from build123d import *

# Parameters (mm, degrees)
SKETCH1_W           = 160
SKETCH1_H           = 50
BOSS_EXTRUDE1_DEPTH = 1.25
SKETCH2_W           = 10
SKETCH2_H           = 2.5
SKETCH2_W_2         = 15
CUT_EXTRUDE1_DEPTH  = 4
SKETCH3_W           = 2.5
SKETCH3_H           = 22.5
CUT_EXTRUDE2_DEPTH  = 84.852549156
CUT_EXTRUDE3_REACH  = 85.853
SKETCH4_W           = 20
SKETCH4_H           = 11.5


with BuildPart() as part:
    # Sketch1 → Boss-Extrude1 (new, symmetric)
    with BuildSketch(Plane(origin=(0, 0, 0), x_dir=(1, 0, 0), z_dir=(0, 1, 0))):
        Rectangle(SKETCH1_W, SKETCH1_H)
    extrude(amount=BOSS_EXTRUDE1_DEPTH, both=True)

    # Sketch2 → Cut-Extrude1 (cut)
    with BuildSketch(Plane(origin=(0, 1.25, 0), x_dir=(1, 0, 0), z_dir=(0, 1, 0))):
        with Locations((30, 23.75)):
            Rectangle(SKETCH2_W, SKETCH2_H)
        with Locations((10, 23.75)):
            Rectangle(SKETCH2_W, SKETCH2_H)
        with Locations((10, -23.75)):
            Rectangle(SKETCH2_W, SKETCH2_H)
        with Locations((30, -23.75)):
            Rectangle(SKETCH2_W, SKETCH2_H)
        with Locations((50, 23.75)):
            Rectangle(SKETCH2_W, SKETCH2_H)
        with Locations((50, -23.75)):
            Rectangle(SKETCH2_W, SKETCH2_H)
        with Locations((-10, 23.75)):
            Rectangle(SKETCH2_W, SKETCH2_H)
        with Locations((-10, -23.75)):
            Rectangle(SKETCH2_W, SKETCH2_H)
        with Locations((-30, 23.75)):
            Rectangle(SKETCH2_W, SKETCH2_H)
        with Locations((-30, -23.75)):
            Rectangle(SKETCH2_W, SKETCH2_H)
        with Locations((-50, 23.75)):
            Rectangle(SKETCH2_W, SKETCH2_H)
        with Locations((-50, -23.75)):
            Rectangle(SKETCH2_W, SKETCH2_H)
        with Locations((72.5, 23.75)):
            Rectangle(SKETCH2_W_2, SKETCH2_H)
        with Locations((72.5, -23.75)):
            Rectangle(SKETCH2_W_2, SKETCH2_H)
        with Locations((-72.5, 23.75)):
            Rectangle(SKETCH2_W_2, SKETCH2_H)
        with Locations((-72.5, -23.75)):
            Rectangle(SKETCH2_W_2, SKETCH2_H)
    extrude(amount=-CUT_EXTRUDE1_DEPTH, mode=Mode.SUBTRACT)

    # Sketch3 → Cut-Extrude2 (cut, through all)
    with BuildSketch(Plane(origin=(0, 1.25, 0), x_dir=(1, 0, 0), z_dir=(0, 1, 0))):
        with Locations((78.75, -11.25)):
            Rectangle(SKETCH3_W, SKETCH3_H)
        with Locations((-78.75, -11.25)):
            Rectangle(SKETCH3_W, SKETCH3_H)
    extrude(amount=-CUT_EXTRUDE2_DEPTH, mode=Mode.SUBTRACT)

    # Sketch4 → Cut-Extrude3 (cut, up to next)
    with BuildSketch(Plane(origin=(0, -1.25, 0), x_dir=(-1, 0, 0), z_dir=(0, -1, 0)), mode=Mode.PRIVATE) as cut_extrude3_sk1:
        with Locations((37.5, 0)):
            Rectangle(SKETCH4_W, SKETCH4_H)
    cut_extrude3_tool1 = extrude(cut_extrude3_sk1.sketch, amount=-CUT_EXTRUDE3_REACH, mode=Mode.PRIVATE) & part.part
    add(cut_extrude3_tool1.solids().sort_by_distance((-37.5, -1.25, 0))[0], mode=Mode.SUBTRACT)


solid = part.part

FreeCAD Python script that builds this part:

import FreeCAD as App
import Part
import Sketcher
from FreeCAD import Vector
Q = App.Units.Quantity


def add_polygon(sketch, points):
    """Adds a closed chain of lines whose ends are joined by coincident constraints."""
    first, n = sketch.GeometryCount, len(points)
    for a, b in zip(points, points[1:] + points[:1]):
        sketch.addGeometry(Part.LineSegment(App.Vector(*a, 0), App.Vector(*b, 0)), False)
    for i in range(n):
        sketch.addConstraint(Sketcher.Constraint("Coincident", first + i, 2, first + (i + 1) % n, 1))

doc = App.newDocument("Part")
body = doc.addObject("PartDesign::Body", "Body")

# Sketch on XZ plane
sketch1 = doc.addObject("Sketcher::SketchObject", "Sketch")
body.addObject(sketch1)
sketch1.AttachmentSupport = (doc.XZ_Plane, [""])
sketch1.MapMode = "FlatFace"
add_polygon(sketch1, [(-80, -25), (-80, 25), (80, 25), (80, -25)])  # lines 0-3
sketch1.addConstraint(Sketcher.Constraint("Vertical", 0))
sketch1.addConstraint(Sketcher.Constraint("Horizontal", 1))
sketch1.addConstraint(Sketcher.Constraint("Vertical", 2))
sketch1.addConstraint(Sketcher.Constraint("Horizontal", 3))
sketch1.addConstraint(Sketcher.Constraint("Symmetric", 0, 2, 2, 2, -1, 1))
sketch1.addConstraint(Sketcher.Constraint("DistanceX", 1, 1, 1, 2, Q("160 mm")))
sketch1.addConstraint(Sketcher.Constraint("DistanceY", 0, 1, 0, 2, Q("50 mm")))
pad1 = doc.addObject("PartDesign::Pad", "Pad")
body.addObject(pad1)
pad1.Profile = sketch1
pad1.Length = 2.5
pad1.Midplane = True

# Sketch on XZ plane
sketch2 = doc.addObject("Sketcher::SketchObject", "Sketch001")
body.addObject(sketch2)
sketch2.AttachmentSupport = (doc.XZ_Plane, [""])
sketch2.MapMode = "FlatFace"
sketch2.AttachmentOffset = App.Placement(Vector(0, 0, -1.25), App.Rotation())
add_polygon(sketch2, [(25, -25), (25, -22.5), (35, -22.5), (35, -25)])  # lines 0-3
add_polygon(sketch2, [(5, -25), (5, -22.5), (15, -22.5), (15, -25)])  # lines 4-7
add_polygon(sketch2, [(5, 22.5), (5, 25), (15, 25), (15, 22.5)])  # lines 8-11
add_polygon(sketch2, [(25, 22.5), (25, 25), (35, 25), (35, 22.5)])  # lines 12-15
add_polygon(sketch2, [(45, -25), (45, -22.5), (55, -22.5), (55, -25)])  # lines 16-19
add_polygon(sketch2, [(45, 22.5), (45, 25), (55, 25), (55, 22.5)])  # lines 20-23
add_polygon(sketch2, [(-15, -25), (-15, -22.5), (-5, -22.5), (-5, -25)])  # lines 24-27
add_polygon(sketch2, [(-15, 22.5), (-15, 25), (-5, 25), (-5, 22.5)])  # lines 28-31
add_polygon(sketch2, [(-35, -25), (-35, -22.5), (-25, -22.5), (-25, -25)])  # lines 32-35
add_polygon(sketch2, [(-35, 22.5), (-35, 25), (-25, 25), (-25, 22.5)])  # lines 36-39
add_polygon(sketch2, [(-55, -25), (-55, -22.5), (-45, -22.5), (-45, -25)])  # lines 40-43
add_polygon(sketch2, [(-55, 22.5), (-55, 25), (-45, 25), (-45, 22.5)])  # lines 44-47
add_polygon(sketch2, [(65, -25), (65, -22.5), (80, -22.5), (80, -25)])  # lines 48-51
add_polygon(sketch2, [(65, 22.5), (65, 25), (80, 25), (80, 22.5)])  # lines 52-55
add_polygon(sketch2, [(-80, -25), (-80, -22.5), (-65, -22.5), (-65, -25)])  # lines 56-59
add_polygon(sketch2, [(-80, 22.5), (-80, 25), (-65, 25), (-65, 22.5)])  # lines 60-63
sketch2.addConstraint(Sketcher.Constraint("Vertical", 0))
sketch2.addConstraint(Sketcher.Constraint("Horizontal", 1))
sketch2.addConstraint(Sketcher.Constraint("Vertical", 2))
sketch2.addConstraint(Sketcher.Constraint("Horizontal", 3))
sketch2.addConstraint(Sketcher.Constraint("Vertical", 4))
sketch2.addConstraint(Sketcher.Constraint("Horizontal", 5))
sketch2.addConstraint(Sketcher.Constraint("Vertical", 6))
sketch2.addConstraint(Sketcher.Constraint("Horizontal", 7))
sketch2.addConstraint(Sketcher.Constraint("Vertical", 8))
sketch2.addConstraint(Sketcher.Constraint("Horizontal", 9))
sketch2.addConstraint(Sketcher.Constraint("Vertical", 10))
sketch2.addConstraint(Sketcher.Constraint("Horizontal", 11))
sketch2.addConstraint(Sketcher.Constraint("Vertical", 12))
sketch2.addConstraint(Sketcher.Constraint("Horizontal", 13))
sketch2.addConstraint(Sketcher.Constraint("Vertical", 14))
sketch2.addConstraint(Sketcher.Constraint("Horizontal", 15))
sketch2.addConstraint(Sketcher.Constraint("Vertical", 16))
sketch2.addConstraint(Sketcher.Constraint("Horizontal", 17))
sketch2.addConstraint(Sketcher.Constraint("Vertical", 18))
sketch2.addConstraint(Sketcher.Constraint("Horizontal", 19))
sketch2.addConstraint(Sketcher.Constraint("Vertical", 20))
sketch2.addConstraint(Sketcher.Constraint("Horizontal", 21))
sketch2.addConstraint(Sketcher.Constraint("Vertical", 22))
sketch2.addConstraint(Sketcher.Constraint("Horizontal", 23))
sketch2.addConstraint(Sketcher.Constraint("Vertical", 24))
sketch2.addConstraint(Sketcher.Constraint("Horizontal", 25))
sketch2.addConstraint(Sketcher.Constraint("Vertical", 26))
sketch2.addConstraint(Sketcher.Constraint("Horizontal", 27))
sketch2.addConstraint(Sketcher.Constraint("Vertical", 28))
sketch2.addConstraint(Sketcher.Constraint("Horizontal", 29))
sketch2.addConstraint(Sketcher.Constraint("Vertical", 30))
sketch2.addConstraint(Sketcher.Constraint("Horizontal", 31))
sketch2.addConstraint(Sketcher.Constraint("Vertical", 32))
sketch2.addConstraint(Sketcher.Constraint("Horizontal", 33))
sketch2.addConstraint(Sketcher.Constraint("Vertical", 34))
sketch2.addConstraint(Sketcher.Constraint("Horizontal", 35))
sketch2.addConstraint(Sketcher.Constraint("Vertical", 36))
sketch2.addConstraint(Sketcher.Constraint("Horizontal", 37))
sketch2.addConstraint(Sketcher.Constraint("Vertical", 38))
sketch2.addConstraint(Sketcher.Constraint("Horizontal", 39))
sketch2.addConstraint(Sketcher.Constraint("Vertical", 40))
sketch2.addConstraint(Sketcher.Constraint("Horizontal", 41))
sketch2.addConstraint(Sketcher.Constraint("Vertical", 42))
sketch2.addConstraint(Sketcher.Constraint("Horizontal", 43))
sketch2.addConstraint(Sketcher.Constraint("Vertical", 44))
sketch2.addConstraint(Sketcher.Constraint("Horizontal", 45))
sketch2.addConstraint(Sketcher.Constraint("Vertical", 46))
sketch2.addConstraint(Sketcher.Constraint("Horizontal", 47))
sketch2.addConstraint(Sketcher.Constraint("Vertical", 48))
sketch2.addConstraint(Sketcher.Constraint("Horizontal", 49))
sketch2.addConstraint(Sketcher.Constraint("Vertical", 50))
sketch2.addConstraint(Sketcher.Constraint("Horizontal", 51))
sketch2.addConstraint(Sketcher.Constraint("Vertical", 52))
sketch2.addConstraint(Sketcher.Constraint("Horizontal", 53))
sketch2.addConstraint(Sketcher.Constraint("Vertical", 54))
sketch2.addConstraint(Sketcher.Constraint("Horizontal", 55))
sketch2.addConstraint(Sketcher.Constraint("Vertical", 56))
sketch2.addConstraint(Sketcher.Constraint("Horizontal", 57))
sketch2.addConstraint(Sketcher.Constraint("Vertical", 58))
sketch2.addConstraint(Sketcher.Constraint("Horizontal", 59))
sketch2.addConstraint(Sketcher.Constraint("Vertical", 60))
sketch2.addConstraint(Sketcher.Constraint("Horizontal", 61))
sketch2.addConstraint(Sketcher.Constraint("Vertical", 62))
sketch2.addConstraint(Sketcher.Constraint("Horizontal", 63))
sketch2.addConstraint(Sketcher.Constraint("Symmetric", 10, 2, 24, 2, -1, 1))
sketch2.addConstraint(Sketcher.Constraint("Symmetric", 8, 2, 26, 2, -1, 1))
sketch2.addConstraint(Sketcher.Constraint("Symmetric", 6, 2, 28, 2, -1, 1))
sketch2.addConstraint(Sketcher.Constraint("Symmetric", 4, 2, 30, 2, -1, 1))
sketch2.addConstraint(Sketcher.Constraint("Symmetric", 14, 2, 32, 2, -1, 1))
sketch2.addConstraint(Sketcher.Constraint("Symmetric", 12, 2, 34, 2, -1, 1))
sketch2.addConstraint(Sketcher.Constraint("Symmetric", 2, 2, 36, 2, -1, 1))
sketch2.addConstraint(Sketcher.Constraint("Symmetric", 0, 2, 38, 2, -1, 1))
sketch2.addConstraint(Sketcher.Constraint("Symmetric", 22, 2, 40, 2, -1, 1))
sketch2.addConstraint(Sketcher.Constraint("Symmetric", 20, 2, 42, 2, -1, 1))
sketch2.addConstraint(Sketcher.Constraint("Symmetric", 18, 2, 44, 2, -1, 1))
sketch2.addConstraint(Sketcher.Constraint("Symmetric", 16, 2, 46, 2, -1, 1))
sketch2.addConstraint(Sketcher.Constraint("Symmetric", 54, 2, 56, 2, -1, 1))
sketch2.addConstraint(Sketcher.Constraint("Symmetric", 52, 2, 58, 2, -1, 1))
sketch2.addConstraint(Sketcher.Constraint("Symmetric", 50, 2, 60, 2, -1, 1))
sketch2.addConstraint(Sketcher.Constraint("Symmetric", 48, 2, 62, 2, -1, 1))
sketch2.addConstraint(Sketcher.Constraint("Symmetric", 5, 2, 24, 2, -2))
sketch2.addConstraint(Sketcher.Constraint("Symmetric", 7, 2, 26, 2, -2))
sketch2.addConstraint(Sketcher.Constraint("Symmetric", 1, 2, 32, 2, -2))
sketch2.addConstraint(Sketcher.Constraint("Symmetric", 3, 2, 34, 2, -2))
sketch2.addConstraint(Sketcher.Constraint("Symmetric", 17, 2, 40, 2, -2))
sketch2.addConstraint(Sketcher.Constraint("Symmetric", 19, 2, 42, 2, -2))
sketch2.addConstraint(Sketcher.Constraint("Symmetric", 49, 2, 56, 2, -2))
sketch2.addConstraint(Sketcher.Constraint("Symmetric", 51, 2, 58, 2, -2))
sketch2.addConstraint(Sketcher.Constraint("Horizontal", 1, 2, 4, 2))
sketch2.addConstraint(Sketcher.Constraint("Horizontal", 3, 2, 6, 2))
sketch2.addConstraint(Sketcher.Constraint("Horizontal", 5, 2, 16, 2))
sketch2.addConstraint(Sketcher.Constraint("Horizontal", 7, 2, 18, 2))
sketch2.addConstraint(Sketcher.Constraint("Horizontal", 41, 2, 48, 2))
sketch2.addConstraint(Sketcher.Constraint("Horizontal", 43, 2, 50, 2))
sketch2.addConstraint(Sketcher.Constraint("Equal", 3, 5))
sketch2.addConstraint(Sketcher.Constraint("Equal", 15, 17))
sketch2.addConstraint(Sketcher.Constraint("DistanceX", 1, 1, 1, 2, Q("10 mm")))
sketch2.addConstraint(Sketcher.Constraint("DistanceX", 49, 1, 49, 2, Q("15 mm")))
sketch2.addConstraint(Sketcher.Constraint("DistanceY", 0, 1, 0, 2, Q("2.5 mm")))
sketch2.addConstraint(Sketcher.Constraint("DistanceX", -1, 1, 0, 2, Q("25 mm")))
sketch2.addConstraint(Sketcher.Constraint("DistanceY", 2, 2, -1, 1, Q("25 mm")))
sketch2.addConstraint(Sketcher.Constraint("DistanceX", -1, 1, 4, 2, Q("5 mm")))
sketch2.addConstraint(Sketcher.Constraint("DistanceX", -1, 1, 16, 2, Q("45 mm")))
sketch2.addConstraint(Sketcher.Constraint("DistanceX", -1, 1, 48, 2, Q("65 mm")))
pocket1 = doc.addObject("PartDesign::Pocket", "Pocket")
body.addObject(pocket1)
pocket1.Profile = sketch2
pocket1.Length = 4
pocket1.Reversed = True

# Sketch on XZ plane
sketch3 = doc.addObject("Sketcher::SketchObject", "Sketch002")
body.addObject(sketch3)
sketch3.AttachmentSupport = (doc.XZ_Plane, [""])
sketch3.MapMode = "FlatFace"
sketch3.AttachmentOffset = App.Placement(Vector(0, 0, -1.25), App.Rotation())
add_polygon(sketch3, [(77.5, 0), (77.5, 22.5), (80, 22.5), (80, 0)])  # lines 0-3
add_polygon(sketch3, [(-80, 0), (-80, 22.5), (-77.5, 22.5), (-77.5, 0)])  # lines 4-7
sketch3.addConstraint(Sketcher.Constraint("Vertical", 0))
sketch3.addConstraint(Sketcher.Constraint("Horizontal", 1))
sketch3.addConstraint(Sketcher.Constraint("Vertical", 2))
sketch3.addConstraint(Sketcher.Constraint("Horizontal", 3))
sketch3.addConstraint(Sketcher.Constraint("Vertical", 4))
sketch3.addConstraint(Sketcher.Constraint("Horizontal", 5))
sketch3.addConstraint(Sketcher.Constraint("Vertical", 6))
sketch3.addConstraint(Sketcher.Constraint("Horizontal", 7))
sketch3.addConstraint(Sketcher.Constraint("Symmetric", 3, 2, 6, 2, -1, 1))
sketch3.addConstraint(Sketcher.Constraint("Symmetric", 1, 2, 4, 2, -2))
sketch3.addConstraint(Sketcher.Constraint("PointOnObject", 2, 2, -1))
sketch3.addConstraint(Sketcher.Constraint("DistanceX", 1, 1, 1, 2, Q("2.5 mm")))
sketch3.addConstraint(Sketcher.Constraint("DistanceY", 0, 1, 0, 2, Q("22.5 mm")))
sketch3.addConstraint(Sketcher.Constraint("DistanceX", -1, 1, 1, 2, Q("80 mm")))
pocket2 = doc.addObject("PartDesign::Pocket", "Pocket001")
body.addObject(pocket2)
pocket2.Profile = sketch3
pocket2.Type = "ThroughAll"
pocket2.Reversed = True

# Sketch on XZ plane
sketch4 = doc.addObject("Sketcher::SketchObject", "Sketch003")
body.addObject(sketch4)
sketch4.AttachmentSupport = (doc.XZ_Plane, [""])
sketch4.MapMode = "FlatFace"
sketch4.AttachmentOffset = App.Placement(Vector(0, 0, 1.25), App.Rotation())
add_polygon(sketch4, [(-28, -6), (-28, 6), (-48, 6), (-48, -6)])  # lines 0-3
sketch4.addConstraint(Sketcher.Constraint("Vertical", 0))
sketch4.addConstraint(Sketcher.Constraint("Horizontal", 1))
sketch4.addConstraint(Sketcher.Constraint("Vertical", 2))
sketch4.addConstraint(Sketcher.Constraint("Horizontal", 3))
sketch4.addConstraint(Sketcher.Constraint("DistanceX", 1, 2, 1, 1, Q("20 mm")))
sketch4.addConstraint(Sketcher.Constraint("DistanceY", 0, 1, 0, 2, Q("11.5 mm")))
sketch4.addConstraint(Sketcher.Constraint("DistanceX", 0, 2, -1, 1, Q("27.5 mm")))
sketch4.addConstraint(Sketcher.Constraint("DistanceY", -1, 1, 0, 2, Q("5.75 mm")))
pocket3 = doc.addObject("PartDesign::Pocket", "Pocket002")
body.addObject(pocket3)
pocket3.Profile = sketch4
pocket3.Type = "UpToFirst"

doc.recompute()
